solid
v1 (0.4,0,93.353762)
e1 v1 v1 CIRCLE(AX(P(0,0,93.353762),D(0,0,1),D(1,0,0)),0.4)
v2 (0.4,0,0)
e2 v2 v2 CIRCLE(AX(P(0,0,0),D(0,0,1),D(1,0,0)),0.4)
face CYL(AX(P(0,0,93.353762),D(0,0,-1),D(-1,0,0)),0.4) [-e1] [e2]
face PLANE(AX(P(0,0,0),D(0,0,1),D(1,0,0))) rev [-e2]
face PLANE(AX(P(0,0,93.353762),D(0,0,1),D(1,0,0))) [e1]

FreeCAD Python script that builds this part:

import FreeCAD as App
import Part
import Sketcher
from FreeCAD import Vector
Q = App.Units.Quantity

doc = App.newDocument("Part")
body = doc.addObject("PartDesign::Body", "Body")

# Sketch on XY plane
sketch1 = doc.addObject("Sketcher::SketchObject", "Sketch")
body.addObject(sketch1)
sketch1.AttachmentSupport = (doc.XY_Plane, [""])
sketch1.MapMode = "FlatFace"
sketch1.addGeometry(Part.Circle(Vector(0, 0, 0), Vector(0, 0, 1), 0.4), False)
sketch1.addConstraint([
    Sketcher.Constraint("Coincident", 0, 3, -1, 1),
    Sketcher.Constraint("Diameter", 0, Q("0.8 mm")),
])
pad1 = doc.addObject("PartDesign::Pad", "Pad")
body.addObject(pad1)
pad1.Profile = sketch1
pad1.Length = 93.353762

doc.recompute()
